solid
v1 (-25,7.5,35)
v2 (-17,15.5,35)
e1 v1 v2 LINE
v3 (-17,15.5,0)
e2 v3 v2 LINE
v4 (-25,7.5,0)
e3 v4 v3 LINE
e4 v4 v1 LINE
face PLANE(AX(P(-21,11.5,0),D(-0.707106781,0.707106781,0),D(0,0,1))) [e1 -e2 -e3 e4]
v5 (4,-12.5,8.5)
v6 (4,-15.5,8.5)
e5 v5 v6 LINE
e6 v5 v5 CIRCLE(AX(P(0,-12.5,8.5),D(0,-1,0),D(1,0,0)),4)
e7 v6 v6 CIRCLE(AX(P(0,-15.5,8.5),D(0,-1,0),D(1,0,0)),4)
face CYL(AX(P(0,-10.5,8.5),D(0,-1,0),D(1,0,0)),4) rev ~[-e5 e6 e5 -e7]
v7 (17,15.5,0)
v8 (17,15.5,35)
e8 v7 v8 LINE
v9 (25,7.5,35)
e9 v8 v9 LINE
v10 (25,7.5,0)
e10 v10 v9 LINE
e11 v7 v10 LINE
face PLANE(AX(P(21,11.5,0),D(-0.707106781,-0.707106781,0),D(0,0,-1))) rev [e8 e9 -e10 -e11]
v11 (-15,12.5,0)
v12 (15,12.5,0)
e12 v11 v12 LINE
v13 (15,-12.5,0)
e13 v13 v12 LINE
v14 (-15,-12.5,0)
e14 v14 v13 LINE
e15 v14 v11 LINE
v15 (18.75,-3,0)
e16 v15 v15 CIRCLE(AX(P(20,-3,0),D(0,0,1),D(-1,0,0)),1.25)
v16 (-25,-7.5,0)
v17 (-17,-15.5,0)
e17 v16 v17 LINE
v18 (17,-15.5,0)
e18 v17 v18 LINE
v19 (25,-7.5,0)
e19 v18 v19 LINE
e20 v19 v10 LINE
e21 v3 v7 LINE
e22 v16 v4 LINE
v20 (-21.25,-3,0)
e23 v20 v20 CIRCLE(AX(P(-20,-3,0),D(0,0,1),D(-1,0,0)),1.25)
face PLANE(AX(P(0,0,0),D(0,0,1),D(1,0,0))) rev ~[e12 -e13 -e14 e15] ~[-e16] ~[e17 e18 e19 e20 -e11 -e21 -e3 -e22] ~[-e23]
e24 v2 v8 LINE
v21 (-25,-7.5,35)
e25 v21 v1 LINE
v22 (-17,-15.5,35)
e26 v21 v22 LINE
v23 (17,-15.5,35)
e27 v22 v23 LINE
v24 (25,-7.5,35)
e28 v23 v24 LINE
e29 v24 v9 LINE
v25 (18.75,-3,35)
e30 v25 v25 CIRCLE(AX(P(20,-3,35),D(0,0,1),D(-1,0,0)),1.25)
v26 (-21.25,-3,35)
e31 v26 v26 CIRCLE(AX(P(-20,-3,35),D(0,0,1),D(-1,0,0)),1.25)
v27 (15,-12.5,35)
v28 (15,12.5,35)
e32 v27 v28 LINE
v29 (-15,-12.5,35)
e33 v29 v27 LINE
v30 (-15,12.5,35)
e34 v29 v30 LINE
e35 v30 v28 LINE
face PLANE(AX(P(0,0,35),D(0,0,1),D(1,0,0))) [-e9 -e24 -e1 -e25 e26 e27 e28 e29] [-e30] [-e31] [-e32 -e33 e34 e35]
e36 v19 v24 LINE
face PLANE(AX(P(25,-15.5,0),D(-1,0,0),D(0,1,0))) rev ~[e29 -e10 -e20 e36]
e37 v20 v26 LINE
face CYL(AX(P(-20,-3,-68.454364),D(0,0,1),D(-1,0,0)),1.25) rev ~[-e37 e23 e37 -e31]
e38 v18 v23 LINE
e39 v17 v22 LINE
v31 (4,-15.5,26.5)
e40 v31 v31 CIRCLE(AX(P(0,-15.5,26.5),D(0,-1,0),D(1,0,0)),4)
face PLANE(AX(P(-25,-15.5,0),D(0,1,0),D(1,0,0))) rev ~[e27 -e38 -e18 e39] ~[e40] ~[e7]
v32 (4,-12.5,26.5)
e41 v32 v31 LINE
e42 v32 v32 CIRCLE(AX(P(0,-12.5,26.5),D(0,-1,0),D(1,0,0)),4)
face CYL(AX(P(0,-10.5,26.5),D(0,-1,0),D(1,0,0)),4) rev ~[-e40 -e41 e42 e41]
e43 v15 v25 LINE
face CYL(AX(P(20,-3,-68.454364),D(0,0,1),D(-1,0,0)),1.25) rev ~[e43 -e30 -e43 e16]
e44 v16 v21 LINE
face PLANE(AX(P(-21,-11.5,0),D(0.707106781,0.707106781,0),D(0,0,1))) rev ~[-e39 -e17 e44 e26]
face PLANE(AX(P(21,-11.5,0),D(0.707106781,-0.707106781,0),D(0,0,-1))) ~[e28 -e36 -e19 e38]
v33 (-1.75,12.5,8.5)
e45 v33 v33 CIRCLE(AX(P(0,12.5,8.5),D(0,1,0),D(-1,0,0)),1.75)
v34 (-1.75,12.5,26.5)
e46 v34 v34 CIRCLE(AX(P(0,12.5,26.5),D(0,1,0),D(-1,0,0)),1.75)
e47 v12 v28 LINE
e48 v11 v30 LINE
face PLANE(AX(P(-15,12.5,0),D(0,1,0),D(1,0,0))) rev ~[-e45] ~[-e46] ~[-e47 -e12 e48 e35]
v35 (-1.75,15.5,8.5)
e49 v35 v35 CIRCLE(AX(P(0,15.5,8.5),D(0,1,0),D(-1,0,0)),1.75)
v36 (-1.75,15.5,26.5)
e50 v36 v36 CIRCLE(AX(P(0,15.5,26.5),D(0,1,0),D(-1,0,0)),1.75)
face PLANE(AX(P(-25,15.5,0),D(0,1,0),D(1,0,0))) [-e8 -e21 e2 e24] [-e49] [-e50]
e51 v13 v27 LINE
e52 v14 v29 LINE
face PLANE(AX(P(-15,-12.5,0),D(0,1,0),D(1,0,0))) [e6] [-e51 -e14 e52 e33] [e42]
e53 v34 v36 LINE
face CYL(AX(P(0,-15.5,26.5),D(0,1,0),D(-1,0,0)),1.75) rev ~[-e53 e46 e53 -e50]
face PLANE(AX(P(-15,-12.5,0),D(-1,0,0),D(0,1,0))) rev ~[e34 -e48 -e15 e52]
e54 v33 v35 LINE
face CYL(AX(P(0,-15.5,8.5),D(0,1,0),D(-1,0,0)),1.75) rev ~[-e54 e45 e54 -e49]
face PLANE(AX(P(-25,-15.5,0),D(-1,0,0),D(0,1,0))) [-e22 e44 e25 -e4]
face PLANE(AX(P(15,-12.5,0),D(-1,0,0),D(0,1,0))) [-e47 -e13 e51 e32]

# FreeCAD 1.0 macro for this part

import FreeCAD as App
import Part
import Sketcher


def edges_at(feature, points):
    """Names of the edges that pass closest to the given points."""
    edges = feature.Shape.Edges
    near = lambda p: min(range(len(edges)), key=lambda i: edges[i].distToShape(Part.Vertex(*p))[0])
    return sorted({f"Edge{near(p) + 1}" for p in points})


def add_polygon(sketch, points):
    """Adds a closed chain of lines whose ends are joined by coincident constraints."""
    first, n = sketch.GeometryCount, len(points)
    for a, b in zip(points, points[1:] + points[:1]):
        sketch.addGeometry(Part.LineSegment(App.Vector(*a, 0), App.Vector(*b, 0)), False)
    for i in range(n):
        sketch.addConstraint(Sketcher.Constraint("Coincident", first + i, 2, first + (i + 1) % n, 1))

doc = App.newDocument("Part")
body = doc.addObject("PartDesign::Body", "Body")

# Sketch on XY plane
sketch1 = body.newObject("Sketcher::SketchObject", "Sketch")
sketch1.AttachmentSupport = (doc.getObject("XY_Plane"), [""])
sketch1.MapMode = "FlatFace"
add_polygon(sketch1, [(-25, 15.5), (-25, -15.5), (25, -15.5), (25, 15.5)])  # lines 0-3
add_polygon(sketch1, [(15, -12.5), (-15, -12.5), (-15, 12.5), (15, 12.5)])  # lines 4-7
sketch1.addConstraint([
    Sketcher.Constraint("Vertical", 0),
    Sketcher.Constraint("Horizontal", 1),
    Sketcher.Constraint("Vertical", 2),
    Sketcher.Constraint("Horizontal", 3),
    Sketcher.Constraint("Horizontal", 4),
    Sketcher.Constraint("Vertical", 5),
    Sketcher.Constraint("Horizontal", 6),
    Sketcher.Constraint("Vertical", 7),
    Sketcher.Constraint("Symmetric", 0, 2, 2, 2, -1, 1),
    Sketcher.Constraint("Symmetric", 4, 2, 6, 2, -1, 1),
    Sketcher.Constraint("DistanceX", 1, 1, 1, 2, 50.0),
    Sketcher.Constraint("DistanceX", 4, 2, 4, 1, 30.0),
    Sketcher.Constraint("DistanceY", 0, 2, 0, 1, 31.0),
    Sketcher.Constraint("DistanceY", 5, 1, 5, 2, 25.0),
])
pad1 = body.newObject("PartDesign::Pad", "Pad")
pad1.Profile = sketch1
pad1.Length = 35

# Sketch on XZ plane
sketch2 = body.newObject("Sketcher::SketchObject", "Sketch001")
sketch2.AttachmentSupport = (doc.getObject("XZ_Plane"), [""])
sketch2.MapMode = "FlatFace"
sketch2.AttachmentOffset = App.Placement(App.Vector(0, 0, 15.5), App.Rotation())
sketch2.addGeometry([
    Part.Circle(App.Vector(0, 26.5, 0), App.Vector(0, 0, 1), 1.75),
    Part.Circle(App.Vector(0, 8.5, 0), App.Vector(0, 0, 1), 1.75),
], False)
sketch2.addConstraint([
    Sketcher.Constraint("Equal", 0, 1),
    Sketcher.Constraint("PointOnObject", 0, 3, -2),
    Sketcher.Constraint("PointOnObject", 1, 3, -2),
    Sketcher.Constraint("Diameter", 0, 3.5),
    Sketcher.Constraint("DistanceY", 1, 3, 0, 3, 18.0),
    Sketcher.Constraint("DistanceY", -1, 1, 0, 3, 26.5),
])
doc.recompute()
hole = body.newObject("PartDesign::Hole", "Hole")
hole.Profile = sketch2
hole.ThreadType = "None"
hole.Diameter = 3.5
hole.DepthType = "ThroughAll"
hole.HoleCutType = "Counterbore"
hole.HoleCutDiameter = 8
hole.HoleCutDepth = 5

# Sketch on XY plane
sketch3 = body.newObject("Sketcher::SketchObject", "Sketch002")
sketch3.AttachmentSupport = (doc.getObject("XY_Plane"), [""])
sketch3.MapMode = "FlatFace"
sketch3.addGeometry([
    Part.Circle(App.Vector(-20, -3, 0), App.Vector(0, 0, 1), 1.25),
    Part.Circle(App.Vector(20, -3, 0), App.Vector(0, 0, 1), 1.25),
], False)
sketch3.addConstraint([
    Sketcher.Constraint("Equal", 0, 1),
    Sketcher.Constraint("Symmetric", 0, 3, 1, 3, -2),
    Sketcher.Constraint("Diameter", 0, 2.5),
    Sketcher.Constraint("DistanceX", 0, 3, -1, 1, 20.0),
    Sketcher.Constraint("DistanceY", 0, 3, -1, 1, 3.0),
])
doc.recompute()
hole2 = body.newObject("PartDesign::Hole", "Hole001")
hole2.Profile = sketch3
hole2.ThreadType = "None"
hole2.Diameter = 2.5
hole2.DepthType = "ThroughAll"
hole2.Reversed = True
doc.recompute()

chamfer = body.newObject("PartDesign::Chamfer", "Chamfer")
chamfer.Base = (hole2, edges_at(hole2, [
    (25, -15.5, 17.5),
    (-25, -15.5, 17.5),
    (-25, 15.5, 17.5),
    (25, 15.5, 17.5),
]))
chamfer.Size = 8

doc.recompute()
